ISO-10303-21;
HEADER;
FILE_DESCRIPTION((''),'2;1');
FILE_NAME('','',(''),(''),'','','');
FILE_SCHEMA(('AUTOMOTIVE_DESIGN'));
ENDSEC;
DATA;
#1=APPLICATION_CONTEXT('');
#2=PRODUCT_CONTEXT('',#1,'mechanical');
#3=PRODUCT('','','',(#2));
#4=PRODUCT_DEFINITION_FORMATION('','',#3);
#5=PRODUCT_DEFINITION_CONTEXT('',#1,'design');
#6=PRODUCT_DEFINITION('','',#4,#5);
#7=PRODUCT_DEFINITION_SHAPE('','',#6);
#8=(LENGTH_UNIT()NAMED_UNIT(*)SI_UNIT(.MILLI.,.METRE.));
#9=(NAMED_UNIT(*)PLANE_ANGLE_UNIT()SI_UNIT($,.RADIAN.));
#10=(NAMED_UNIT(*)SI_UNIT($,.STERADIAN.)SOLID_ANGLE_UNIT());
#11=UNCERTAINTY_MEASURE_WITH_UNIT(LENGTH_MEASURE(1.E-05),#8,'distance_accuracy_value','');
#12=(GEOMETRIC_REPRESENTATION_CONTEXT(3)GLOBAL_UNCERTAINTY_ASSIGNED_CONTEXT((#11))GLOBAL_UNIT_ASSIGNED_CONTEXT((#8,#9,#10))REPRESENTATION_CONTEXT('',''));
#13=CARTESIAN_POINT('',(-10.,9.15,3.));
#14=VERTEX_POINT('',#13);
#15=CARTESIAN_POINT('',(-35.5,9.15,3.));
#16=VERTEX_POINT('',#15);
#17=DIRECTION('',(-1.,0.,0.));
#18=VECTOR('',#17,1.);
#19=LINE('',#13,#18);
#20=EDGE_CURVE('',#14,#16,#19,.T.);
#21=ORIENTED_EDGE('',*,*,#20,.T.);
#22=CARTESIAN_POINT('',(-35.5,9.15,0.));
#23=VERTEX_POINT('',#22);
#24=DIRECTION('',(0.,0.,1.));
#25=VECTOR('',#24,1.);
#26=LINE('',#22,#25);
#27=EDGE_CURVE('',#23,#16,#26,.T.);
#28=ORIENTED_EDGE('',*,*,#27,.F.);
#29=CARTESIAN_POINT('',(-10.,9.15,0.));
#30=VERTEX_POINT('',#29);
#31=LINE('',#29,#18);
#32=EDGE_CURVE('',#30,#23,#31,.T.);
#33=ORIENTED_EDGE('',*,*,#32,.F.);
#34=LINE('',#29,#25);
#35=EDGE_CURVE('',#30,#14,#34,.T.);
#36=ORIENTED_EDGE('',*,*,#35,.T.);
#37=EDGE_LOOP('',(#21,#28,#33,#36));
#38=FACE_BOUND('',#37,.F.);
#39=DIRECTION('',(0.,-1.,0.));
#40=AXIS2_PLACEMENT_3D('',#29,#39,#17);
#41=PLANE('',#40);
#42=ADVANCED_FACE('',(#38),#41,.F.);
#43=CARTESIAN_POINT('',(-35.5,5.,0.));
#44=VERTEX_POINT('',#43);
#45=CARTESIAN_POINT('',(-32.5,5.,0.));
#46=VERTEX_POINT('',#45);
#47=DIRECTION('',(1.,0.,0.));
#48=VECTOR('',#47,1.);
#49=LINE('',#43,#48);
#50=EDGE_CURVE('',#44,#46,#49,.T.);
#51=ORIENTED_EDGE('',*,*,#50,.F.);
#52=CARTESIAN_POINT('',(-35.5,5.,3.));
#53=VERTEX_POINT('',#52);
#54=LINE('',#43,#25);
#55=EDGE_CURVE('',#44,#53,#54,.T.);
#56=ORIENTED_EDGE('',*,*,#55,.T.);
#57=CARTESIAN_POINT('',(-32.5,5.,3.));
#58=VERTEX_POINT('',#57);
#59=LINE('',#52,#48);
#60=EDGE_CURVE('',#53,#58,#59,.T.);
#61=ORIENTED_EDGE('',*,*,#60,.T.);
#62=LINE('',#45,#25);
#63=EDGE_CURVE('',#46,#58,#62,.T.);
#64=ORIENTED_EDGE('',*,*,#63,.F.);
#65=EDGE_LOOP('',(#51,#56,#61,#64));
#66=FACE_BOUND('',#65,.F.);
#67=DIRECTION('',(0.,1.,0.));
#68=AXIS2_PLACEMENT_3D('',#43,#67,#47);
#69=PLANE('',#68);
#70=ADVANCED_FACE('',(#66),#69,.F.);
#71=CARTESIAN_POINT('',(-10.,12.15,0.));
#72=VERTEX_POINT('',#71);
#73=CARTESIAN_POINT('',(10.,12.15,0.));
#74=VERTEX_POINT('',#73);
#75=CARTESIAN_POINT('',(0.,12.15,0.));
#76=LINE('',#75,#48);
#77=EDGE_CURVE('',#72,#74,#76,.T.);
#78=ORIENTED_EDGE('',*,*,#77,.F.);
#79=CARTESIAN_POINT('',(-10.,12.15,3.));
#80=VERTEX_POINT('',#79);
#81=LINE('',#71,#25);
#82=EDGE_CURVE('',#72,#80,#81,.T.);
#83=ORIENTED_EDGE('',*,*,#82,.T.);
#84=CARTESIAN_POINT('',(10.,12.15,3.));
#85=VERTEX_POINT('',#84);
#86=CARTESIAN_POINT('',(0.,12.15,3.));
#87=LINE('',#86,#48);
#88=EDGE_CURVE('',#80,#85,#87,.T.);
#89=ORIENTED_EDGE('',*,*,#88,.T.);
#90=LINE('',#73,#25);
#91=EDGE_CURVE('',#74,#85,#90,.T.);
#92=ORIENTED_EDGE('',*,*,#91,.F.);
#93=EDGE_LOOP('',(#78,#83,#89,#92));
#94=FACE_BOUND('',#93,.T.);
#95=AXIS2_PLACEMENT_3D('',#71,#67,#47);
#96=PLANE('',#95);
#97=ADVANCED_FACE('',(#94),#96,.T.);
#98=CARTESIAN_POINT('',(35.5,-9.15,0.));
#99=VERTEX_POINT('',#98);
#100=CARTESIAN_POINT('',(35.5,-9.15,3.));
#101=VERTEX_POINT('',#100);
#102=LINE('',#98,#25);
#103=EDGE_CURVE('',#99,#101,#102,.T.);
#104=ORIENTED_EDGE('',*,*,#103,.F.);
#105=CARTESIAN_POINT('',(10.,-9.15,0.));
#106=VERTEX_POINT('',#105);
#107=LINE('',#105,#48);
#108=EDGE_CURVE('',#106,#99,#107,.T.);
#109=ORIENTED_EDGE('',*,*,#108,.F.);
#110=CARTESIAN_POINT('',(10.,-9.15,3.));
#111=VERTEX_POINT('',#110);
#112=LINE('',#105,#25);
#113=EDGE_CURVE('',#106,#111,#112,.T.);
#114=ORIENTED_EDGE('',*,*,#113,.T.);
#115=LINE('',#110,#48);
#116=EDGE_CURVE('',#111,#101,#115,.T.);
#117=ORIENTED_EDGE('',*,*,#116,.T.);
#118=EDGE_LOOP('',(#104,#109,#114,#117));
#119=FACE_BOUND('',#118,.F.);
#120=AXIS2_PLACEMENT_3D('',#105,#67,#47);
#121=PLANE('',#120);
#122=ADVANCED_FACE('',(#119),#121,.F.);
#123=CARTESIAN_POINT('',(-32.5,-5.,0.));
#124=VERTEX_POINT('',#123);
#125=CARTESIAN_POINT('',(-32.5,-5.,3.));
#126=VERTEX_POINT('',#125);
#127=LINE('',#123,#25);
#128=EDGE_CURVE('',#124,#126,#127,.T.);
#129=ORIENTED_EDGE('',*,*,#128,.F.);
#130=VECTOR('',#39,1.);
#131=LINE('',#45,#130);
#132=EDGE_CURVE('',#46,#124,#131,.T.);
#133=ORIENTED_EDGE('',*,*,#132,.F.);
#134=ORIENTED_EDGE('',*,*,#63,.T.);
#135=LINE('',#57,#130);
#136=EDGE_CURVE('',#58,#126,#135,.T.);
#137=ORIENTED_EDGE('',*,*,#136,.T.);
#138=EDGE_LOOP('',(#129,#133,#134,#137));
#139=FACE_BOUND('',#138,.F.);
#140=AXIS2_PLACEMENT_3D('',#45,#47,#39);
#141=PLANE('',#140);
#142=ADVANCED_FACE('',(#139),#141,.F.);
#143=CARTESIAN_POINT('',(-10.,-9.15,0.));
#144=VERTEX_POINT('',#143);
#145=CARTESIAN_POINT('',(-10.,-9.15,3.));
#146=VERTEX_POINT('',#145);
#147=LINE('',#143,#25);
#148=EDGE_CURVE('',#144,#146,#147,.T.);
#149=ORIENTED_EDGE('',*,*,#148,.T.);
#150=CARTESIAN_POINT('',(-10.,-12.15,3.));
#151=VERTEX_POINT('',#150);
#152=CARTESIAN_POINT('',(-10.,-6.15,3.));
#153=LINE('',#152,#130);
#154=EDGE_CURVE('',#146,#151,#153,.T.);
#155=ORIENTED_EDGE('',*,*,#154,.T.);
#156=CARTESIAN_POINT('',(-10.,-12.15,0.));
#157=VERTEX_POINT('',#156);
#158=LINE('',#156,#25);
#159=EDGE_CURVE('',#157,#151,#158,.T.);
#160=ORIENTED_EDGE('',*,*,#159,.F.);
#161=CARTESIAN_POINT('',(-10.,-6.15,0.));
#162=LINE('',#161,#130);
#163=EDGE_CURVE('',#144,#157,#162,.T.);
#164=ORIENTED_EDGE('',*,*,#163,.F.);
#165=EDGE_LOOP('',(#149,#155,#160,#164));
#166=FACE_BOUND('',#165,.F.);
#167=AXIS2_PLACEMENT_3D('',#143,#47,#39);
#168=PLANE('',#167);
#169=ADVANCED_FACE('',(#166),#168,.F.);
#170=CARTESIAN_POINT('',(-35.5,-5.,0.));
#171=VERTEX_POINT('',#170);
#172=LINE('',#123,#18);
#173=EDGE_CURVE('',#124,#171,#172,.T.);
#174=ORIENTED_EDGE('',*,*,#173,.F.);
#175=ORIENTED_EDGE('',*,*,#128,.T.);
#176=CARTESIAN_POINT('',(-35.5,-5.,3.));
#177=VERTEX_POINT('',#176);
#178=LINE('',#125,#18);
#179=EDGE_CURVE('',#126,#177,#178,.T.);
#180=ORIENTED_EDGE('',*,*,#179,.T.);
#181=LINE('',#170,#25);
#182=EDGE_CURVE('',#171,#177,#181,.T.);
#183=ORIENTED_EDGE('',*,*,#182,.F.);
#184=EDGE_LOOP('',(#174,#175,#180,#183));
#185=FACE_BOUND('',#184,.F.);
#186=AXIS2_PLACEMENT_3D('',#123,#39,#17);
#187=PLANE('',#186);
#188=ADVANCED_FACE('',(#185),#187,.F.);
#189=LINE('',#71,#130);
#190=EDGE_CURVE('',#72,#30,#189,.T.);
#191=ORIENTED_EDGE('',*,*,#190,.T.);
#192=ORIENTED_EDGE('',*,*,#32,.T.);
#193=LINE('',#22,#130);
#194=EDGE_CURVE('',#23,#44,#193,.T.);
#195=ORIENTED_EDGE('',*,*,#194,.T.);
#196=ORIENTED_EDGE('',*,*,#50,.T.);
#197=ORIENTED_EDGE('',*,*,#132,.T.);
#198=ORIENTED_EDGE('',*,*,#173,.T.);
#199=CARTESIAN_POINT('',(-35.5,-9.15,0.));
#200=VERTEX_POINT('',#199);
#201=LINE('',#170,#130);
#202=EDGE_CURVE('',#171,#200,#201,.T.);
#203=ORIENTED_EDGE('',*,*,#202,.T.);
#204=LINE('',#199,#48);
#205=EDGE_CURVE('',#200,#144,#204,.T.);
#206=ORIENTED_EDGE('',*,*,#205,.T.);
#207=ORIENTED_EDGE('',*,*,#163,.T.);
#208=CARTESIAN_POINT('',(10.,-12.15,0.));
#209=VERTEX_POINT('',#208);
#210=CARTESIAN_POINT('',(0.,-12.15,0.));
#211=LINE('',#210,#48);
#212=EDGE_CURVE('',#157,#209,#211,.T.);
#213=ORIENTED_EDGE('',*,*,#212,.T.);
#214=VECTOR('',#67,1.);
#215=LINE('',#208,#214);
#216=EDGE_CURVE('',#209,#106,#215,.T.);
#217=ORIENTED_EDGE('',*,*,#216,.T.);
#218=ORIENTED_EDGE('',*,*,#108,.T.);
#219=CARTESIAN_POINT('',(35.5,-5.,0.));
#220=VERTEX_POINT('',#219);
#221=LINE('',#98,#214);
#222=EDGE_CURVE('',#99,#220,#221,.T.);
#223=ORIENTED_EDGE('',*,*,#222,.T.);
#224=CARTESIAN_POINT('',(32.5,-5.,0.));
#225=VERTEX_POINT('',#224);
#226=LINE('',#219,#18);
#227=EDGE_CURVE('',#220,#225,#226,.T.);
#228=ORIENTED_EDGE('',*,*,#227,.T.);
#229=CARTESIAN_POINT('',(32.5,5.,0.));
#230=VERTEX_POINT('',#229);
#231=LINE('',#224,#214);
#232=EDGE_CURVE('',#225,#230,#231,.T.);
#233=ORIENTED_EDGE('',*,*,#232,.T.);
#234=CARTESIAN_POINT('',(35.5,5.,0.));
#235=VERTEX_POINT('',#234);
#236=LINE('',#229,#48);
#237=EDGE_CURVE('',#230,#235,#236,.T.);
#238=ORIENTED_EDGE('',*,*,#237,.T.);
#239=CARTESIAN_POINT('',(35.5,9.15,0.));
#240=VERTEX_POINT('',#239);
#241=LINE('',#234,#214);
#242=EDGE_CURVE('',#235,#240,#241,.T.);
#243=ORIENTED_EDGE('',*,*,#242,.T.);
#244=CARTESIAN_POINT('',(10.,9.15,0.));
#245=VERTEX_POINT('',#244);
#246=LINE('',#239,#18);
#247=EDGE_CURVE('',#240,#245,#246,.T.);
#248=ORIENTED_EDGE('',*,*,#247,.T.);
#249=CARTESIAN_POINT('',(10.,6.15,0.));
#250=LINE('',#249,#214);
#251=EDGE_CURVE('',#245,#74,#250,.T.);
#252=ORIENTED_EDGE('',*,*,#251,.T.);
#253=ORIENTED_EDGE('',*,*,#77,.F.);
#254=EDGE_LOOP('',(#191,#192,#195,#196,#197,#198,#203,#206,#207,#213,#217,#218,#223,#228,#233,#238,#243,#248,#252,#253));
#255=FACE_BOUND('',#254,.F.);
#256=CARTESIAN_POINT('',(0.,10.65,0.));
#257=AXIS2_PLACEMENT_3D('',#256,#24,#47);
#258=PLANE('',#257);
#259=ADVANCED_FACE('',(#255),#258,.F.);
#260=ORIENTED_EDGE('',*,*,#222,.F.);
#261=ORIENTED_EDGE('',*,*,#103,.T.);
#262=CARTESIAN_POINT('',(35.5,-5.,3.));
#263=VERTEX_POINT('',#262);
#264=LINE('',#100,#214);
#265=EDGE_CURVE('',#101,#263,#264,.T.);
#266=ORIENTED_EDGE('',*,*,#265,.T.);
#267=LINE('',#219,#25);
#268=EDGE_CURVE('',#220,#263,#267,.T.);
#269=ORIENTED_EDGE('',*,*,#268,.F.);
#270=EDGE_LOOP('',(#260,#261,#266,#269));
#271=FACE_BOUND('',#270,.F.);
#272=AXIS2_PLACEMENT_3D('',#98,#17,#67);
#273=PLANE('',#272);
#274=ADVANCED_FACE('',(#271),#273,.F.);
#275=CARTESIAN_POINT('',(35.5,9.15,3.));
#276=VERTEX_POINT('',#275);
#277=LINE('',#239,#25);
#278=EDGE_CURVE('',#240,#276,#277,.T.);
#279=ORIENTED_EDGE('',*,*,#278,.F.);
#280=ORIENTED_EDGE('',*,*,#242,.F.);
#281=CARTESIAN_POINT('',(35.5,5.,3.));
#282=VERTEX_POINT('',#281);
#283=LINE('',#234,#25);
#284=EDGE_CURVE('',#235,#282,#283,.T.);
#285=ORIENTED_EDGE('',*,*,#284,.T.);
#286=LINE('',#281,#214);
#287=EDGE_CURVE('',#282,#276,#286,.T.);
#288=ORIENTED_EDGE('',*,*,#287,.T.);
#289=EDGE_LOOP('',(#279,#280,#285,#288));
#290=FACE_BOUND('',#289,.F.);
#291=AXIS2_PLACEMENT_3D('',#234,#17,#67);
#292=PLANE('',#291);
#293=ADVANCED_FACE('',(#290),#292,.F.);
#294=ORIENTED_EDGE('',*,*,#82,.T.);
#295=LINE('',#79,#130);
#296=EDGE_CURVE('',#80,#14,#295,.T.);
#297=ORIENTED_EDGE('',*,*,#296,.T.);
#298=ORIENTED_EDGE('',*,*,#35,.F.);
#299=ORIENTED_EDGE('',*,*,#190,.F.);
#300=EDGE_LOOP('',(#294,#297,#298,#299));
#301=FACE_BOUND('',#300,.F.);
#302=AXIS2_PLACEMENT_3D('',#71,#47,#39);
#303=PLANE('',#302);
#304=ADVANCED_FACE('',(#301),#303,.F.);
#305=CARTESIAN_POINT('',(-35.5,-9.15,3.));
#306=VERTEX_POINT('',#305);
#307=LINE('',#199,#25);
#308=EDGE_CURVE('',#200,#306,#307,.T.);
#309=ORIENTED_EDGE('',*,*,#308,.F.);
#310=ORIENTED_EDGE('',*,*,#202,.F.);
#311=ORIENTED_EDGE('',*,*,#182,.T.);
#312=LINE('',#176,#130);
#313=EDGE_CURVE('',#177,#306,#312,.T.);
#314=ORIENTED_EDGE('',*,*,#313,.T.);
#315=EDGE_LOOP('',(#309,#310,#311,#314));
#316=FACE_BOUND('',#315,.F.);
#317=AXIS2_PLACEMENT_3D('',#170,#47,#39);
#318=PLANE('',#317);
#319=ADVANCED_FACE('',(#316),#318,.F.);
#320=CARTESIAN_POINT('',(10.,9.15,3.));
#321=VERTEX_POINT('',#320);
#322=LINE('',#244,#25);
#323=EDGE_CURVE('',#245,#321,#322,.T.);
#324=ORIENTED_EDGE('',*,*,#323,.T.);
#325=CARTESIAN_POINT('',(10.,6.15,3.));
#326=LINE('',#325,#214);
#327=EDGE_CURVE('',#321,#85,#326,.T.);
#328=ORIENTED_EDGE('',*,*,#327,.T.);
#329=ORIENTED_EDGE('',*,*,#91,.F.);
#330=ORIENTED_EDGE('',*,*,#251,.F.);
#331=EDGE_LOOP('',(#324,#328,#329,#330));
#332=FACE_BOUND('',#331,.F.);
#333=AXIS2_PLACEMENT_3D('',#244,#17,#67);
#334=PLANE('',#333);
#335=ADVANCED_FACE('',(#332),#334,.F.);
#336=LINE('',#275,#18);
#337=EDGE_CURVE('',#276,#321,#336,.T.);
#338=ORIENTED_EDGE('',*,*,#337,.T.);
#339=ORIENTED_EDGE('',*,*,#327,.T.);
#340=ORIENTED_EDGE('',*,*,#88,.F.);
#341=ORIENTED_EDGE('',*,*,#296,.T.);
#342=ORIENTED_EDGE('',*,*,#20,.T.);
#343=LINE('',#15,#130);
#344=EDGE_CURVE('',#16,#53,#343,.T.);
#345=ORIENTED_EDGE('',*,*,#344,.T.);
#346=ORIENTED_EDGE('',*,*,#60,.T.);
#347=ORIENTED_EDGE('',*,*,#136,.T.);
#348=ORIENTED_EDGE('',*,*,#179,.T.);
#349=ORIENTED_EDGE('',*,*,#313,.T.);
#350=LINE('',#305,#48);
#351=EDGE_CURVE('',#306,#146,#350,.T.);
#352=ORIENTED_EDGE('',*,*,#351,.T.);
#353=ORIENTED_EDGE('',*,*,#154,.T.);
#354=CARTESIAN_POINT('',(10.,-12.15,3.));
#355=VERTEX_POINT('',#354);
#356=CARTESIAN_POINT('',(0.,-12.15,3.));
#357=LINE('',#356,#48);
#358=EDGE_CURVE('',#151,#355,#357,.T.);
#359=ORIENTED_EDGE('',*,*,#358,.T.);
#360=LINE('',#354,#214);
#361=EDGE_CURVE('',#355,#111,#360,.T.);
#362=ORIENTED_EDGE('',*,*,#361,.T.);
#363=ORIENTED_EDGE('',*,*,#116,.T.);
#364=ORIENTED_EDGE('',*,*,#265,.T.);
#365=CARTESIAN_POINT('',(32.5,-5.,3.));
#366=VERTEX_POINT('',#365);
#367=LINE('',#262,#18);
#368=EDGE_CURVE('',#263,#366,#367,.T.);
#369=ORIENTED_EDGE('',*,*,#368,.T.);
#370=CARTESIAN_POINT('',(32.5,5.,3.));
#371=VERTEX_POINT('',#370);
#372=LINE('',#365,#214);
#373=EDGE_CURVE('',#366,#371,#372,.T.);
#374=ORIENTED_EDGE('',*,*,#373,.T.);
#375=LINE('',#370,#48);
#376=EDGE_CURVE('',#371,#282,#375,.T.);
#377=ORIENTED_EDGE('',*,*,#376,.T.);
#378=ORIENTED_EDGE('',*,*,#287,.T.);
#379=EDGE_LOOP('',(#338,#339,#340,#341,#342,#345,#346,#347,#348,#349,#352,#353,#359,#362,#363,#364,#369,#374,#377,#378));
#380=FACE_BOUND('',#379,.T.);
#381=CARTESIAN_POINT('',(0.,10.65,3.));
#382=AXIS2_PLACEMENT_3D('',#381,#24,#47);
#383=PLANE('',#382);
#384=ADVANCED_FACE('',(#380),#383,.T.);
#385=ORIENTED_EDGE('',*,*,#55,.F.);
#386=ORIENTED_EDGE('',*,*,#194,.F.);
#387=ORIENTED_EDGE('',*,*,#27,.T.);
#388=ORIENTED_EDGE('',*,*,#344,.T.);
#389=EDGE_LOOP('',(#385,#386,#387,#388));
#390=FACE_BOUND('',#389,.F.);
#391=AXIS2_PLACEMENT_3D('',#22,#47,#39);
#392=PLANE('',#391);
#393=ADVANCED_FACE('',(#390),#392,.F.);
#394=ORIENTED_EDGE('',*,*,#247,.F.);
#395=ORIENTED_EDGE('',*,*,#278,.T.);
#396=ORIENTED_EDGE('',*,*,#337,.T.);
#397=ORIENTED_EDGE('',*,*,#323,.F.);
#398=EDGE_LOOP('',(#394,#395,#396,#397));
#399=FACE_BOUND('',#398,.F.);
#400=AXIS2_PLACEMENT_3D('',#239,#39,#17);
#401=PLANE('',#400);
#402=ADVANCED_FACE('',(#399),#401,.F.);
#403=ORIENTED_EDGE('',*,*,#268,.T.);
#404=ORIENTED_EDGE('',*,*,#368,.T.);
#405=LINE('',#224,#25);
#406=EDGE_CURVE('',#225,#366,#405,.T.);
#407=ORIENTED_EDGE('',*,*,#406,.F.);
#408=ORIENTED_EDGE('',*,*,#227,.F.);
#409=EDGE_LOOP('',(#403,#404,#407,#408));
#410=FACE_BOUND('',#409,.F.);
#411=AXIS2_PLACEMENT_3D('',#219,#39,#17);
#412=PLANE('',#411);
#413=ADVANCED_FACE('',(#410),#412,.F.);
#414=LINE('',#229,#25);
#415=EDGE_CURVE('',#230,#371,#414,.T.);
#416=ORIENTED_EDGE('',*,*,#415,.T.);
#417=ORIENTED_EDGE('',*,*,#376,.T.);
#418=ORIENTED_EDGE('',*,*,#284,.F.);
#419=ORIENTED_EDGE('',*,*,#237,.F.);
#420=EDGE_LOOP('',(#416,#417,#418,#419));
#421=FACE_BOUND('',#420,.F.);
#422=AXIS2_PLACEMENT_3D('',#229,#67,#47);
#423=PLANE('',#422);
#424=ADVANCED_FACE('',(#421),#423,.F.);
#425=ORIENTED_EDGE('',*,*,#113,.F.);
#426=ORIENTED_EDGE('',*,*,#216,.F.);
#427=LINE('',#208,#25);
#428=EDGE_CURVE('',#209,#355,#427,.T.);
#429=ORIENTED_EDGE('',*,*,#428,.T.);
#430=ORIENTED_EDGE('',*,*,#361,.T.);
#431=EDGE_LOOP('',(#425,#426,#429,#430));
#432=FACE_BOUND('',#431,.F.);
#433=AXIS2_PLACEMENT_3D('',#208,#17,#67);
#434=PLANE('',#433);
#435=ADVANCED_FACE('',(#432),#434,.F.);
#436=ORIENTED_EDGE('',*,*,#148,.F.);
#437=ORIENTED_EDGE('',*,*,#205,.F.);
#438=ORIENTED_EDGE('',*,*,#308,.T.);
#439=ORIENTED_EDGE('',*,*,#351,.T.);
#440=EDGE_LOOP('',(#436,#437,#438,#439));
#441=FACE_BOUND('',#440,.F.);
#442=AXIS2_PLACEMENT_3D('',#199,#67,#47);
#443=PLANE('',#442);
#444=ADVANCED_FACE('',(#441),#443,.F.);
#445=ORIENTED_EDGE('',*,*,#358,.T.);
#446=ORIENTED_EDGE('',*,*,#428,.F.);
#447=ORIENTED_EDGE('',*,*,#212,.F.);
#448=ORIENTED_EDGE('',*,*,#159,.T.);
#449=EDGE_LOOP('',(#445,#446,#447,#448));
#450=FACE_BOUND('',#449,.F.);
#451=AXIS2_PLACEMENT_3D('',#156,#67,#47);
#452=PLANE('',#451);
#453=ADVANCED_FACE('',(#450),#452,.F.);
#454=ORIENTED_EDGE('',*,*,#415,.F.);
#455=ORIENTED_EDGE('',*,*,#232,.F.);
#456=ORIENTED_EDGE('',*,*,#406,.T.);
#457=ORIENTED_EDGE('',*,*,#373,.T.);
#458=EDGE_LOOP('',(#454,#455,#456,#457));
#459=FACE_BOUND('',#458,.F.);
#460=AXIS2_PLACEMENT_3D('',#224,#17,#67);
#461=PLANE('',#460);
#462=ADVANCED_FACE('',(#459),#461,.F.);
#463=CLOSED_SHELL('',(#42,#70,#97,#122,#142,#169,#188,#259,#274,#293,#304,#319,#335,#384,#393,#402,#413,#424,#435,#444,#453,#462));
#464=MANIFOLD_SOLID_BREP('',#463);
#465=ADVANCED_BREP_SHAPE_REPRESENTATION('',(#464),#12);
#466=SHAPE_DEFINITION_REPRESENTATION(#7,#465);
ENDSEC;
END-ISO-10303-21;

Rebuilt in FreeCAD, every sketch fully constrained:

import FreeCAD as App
import Part
import Sketcher

V = App.Vector
Q = App.Units.Quantity

doc = App.newDocument("Part")
body = doc.addObject("PartDesign::Body", "Body")

sketch1 = body.newObject("Sketcher::SketchObject", "Sketch")
sketch1.AttachmentSupport = (doc.getObject("XY_Plane"), [""])
sketch1.MapMode = "FlatFace"
sketch1.addGeometry(Part.LineSegment(V(-10, 12.2, 0), V(-10, 9.2, 0)), False)
sketch1.addGeometry(Part.LineSegment(V(-10, 9.2, 0), V(-35.5, 9.2, 0)), False)
sketch1.addGeometry(Part.LineSegment(V(-35.5, 9.2, 0), V(-35.5, 5, 0)), False)
sketch1.addGeometry(Part.LineSegment(V(-35.5, 5, 0), V(-32.5, 5, 0)), False)
sketch1.addGeometry(Part.LineSegment(V(-32.5, 5, 0), V(-32.5, -5, 0)), False)
sketch1.addGeometry(Part.LineSegment(V(-32.5, -5, 0), V(-35.5, -5, 0)), False)
sketch1.addGeometry(Part.LineSegment(V(-35.5, -5, 0), V(-35.5, -9.2, 0)), False)
sketch1.addGeometry(Part.LineSegment(V(-35.5, -9.2, 0), V(-10, -9.2, 0)), False)
sketch1.addGeometry(Part.LineSegment(V(-10, -9.2, 0), V(-10, -12.2, 0)), False)
sketch1.addGeometry(Part.LineSegment(V(-10, -12.2, 0), V(10, -12.2, 0)), False)
sketch1.addGeometry(Part.LineSegment(V(10, -12.2, 0), V(10, -9.2, 0)), False)
sketch1.addGeometry(Part.LineSegment(V(10, -9.2, 0), V(35.5, -9.2, 0)), False)
sketch1.addGeometry(Part.LineSegment(V(35.5, -9.2, 0), V(35.5, -5, 0)), False)
sketch1.addGeometry(Part.LineSegment(V(35.5, -5, 0), V(32.5, -5, 0)), False)
sketch1.addGeometry(Part.LineSegment(V(32.5, -5, 0), V(32.5, 5, 0)), False)
sketch1.addGeometry(Part.LineSegment(V(32.5, 5, 0), V(35.5, 5, 0)), False)
sketch1.addGeometry(Part.LineSegment(V(35.5, 5, 0), V(35.5, 9.2, 0)), False)
sketch1.addGeometry(Part.LineSegment(V(35.5, 9.2, 0), V(10, 9.2, 0)), False)
sketch1.addGeometry(Part.LineSegment(V(10, 9.2, 0), V(10, 12.2, 0)), False)
sketch1.addGeometry(Part.LineSegment(V(10, 12.2, 0), V(-10, 12.2, 0)), False)
sketch1.addConstraint(Sketcher.Constraint("Coincident", 0, 2, 1, 1))
sketch1.addConstraint(Sketcher.Constraint("Coincident", 1, 2, 2, 1))
sketch1.addConstraint(Sketcher.Constraint("Coincident", 2, 2, 3, 1))
sketch1.addConstraint(Sketcher.Constraint("Coincident", 3, 2, 4, 1))
sketch1.addConstraint(Sketcher.Constraint("Coincident", 4, 2, 5, 1))
sketch1.addConstraint(Sketcher.Constraint("Coincident", 5, 2, 6, 1))
sketch1.addConstraint(Sketcher.Constraint("Coincident", 6, 2, 7, 1))
sketch1.addConstraint(Sketcher.Constraint("Coincident", 7, 2, 8, 1))
sketch1.addConstraint(Sketcher.Constraint("Coincident", 8, 2, 9, 1))
sketch1.addConstraint(Sketcher.Constraint("Coincident", 9, 2, 10, 1))
sketch1.addConstraint(Sketcher.Constraint("Coincident", 10, 2, 11, 1))
sketch1.addConstraint(Sketcher.Constraint("Coincident", 11, 2, 12, 1))
sketch1.addConstraint(Sketcher.Constraint("Coincident", 12, 2, 13, 1))
sketch1.addConstraint(Sketcher.Constraint("Coincident", 13, 2, 14, 1))
sketch1.addConstraint(Sketcher.Constraint("Coincident", 14, 2, 15, 1))
sketch1.addConstraint(Sketcher.Constraint("Coincident", 15, 2, 16, 1))
sketch1.addConstraint(Sketcher.Constraint("Coincident", 16, 2, 17, 1))
sketch1.addConstraint(Sketcher.Constraint("Coincident", 17, 2, 18, 1))
sketch1.addConstraint(Sketcher.Constraint("Coincident", 18, 2, 19, 1))
sketch1.addConstraint(Sketcher.Constraint("Coincident", 19, 2, 0, 1))
sketch1.addConstraint(Sketcher.Constraint("Vertical", 0))
sketch1.addConstraint(Sketcher.Constraint("Horizontal", 1))
sketch1.addConstraint(Sketcher.Constraint("Vertical", 2))
sketch1.addConstraint(Sketcher.Constraint("Horizontal", 3))
sketch1.addConstraint(Sketcher.Constraint("Vertical", 4))
sketch1.addConstraint(Sketcher.Constraint("Horizontal", 5))
sketch1.addConstraint(Sketcher.Constraint("Vertical", 6))
sketch1.addConstraint(Sketcher.Constraint("Horizontal", 7))
sketch1.addConstraint(Sketcher.Constraint("Vertical", 8))
sketch1.addConstraint(Sketcher.Constraint("Horizontal", 9))
sketch1.addConstraint(Sketcher.Constraint("Vertical", 10))
sketch1.addConstraint(Sketcher.Constraint("Horizontal", 11))
sketch1.addConstraint(Sketcher.Constraint("Vertical", 12))
sketch1.addConstraint(Sketcher.Constraint("Horizontal", 13))
sketch1.addConstraint(Sketcher.Constraint("Vertical", 14))
sketch1.addConstraint(Sketcher.Constraint("Horizontal", 15))
sketch1.addConstraint(Sketcher.Constraint("Vertical", 16))
sketch1.addConstraint(Sketcher.Constraint("Horizontal", 17))
sketch1.addConstraint(Sketcher.Constraint("Vertical", 18))
sketch1.addConstraint(Sketcher.Constraint("Horizontal", 19))
sketch1.addConstraint(Sketcher.Constraint("Symmetric", 0, 2, 10, 2, -1, 1))
sketch1.addConstraint(Sketcher.Constraint("Symmetric", 2, 2, 12, 2, -1, 1))
sketch1.addConstraint(Sketcher.Constraint("Symmetric", 4, 2, 14, 2, -1, 1))
sketch1.addConstraint(Sketcher.Constraint("Symmetric", 6, 2, 16, 2, -1, 1))
sketch1.addConstraint(Sketcher.Constraint("Symmetric", 8, 2, 18, 2, -1, 1))
sketch1.addConstraint(Sketcher.Constraint("Symmetric", 7, 2, 10, 2, -2))
sketch1.addConstraint(Sketcher.Constraint("Symmetric", 5, 2, 12, 2, -2))
sketch1.addConstraint(Sketcher.Constraint("Equal", 15, 0))
sketch1.addConstraint(Sketcher.Constraint("DistanceX", 3, 1, 3, 2, Q("3 mm")))
sketch1.addConstraint(Sketcher.Constraint("DistanceX", 9, 1, 9, 2, Q("20 mm")))
sketch1.addConstraint(Sketcher.Constraint("DistanceY", 4, 2, 4, 1, Q("10 mm")))
sketch1.addConstraint(Sketcher.Constraint("DistanceX", 1, 2, 1, 1, Q("25.5 mm")))
sketch1.addConstraint(Sketcher.Constraint("DistanceY", 2, 2, 2, 1, Q("4.15 mm")))
pad1 = body.newObject("PartDesign::Pad", "Pad")
pad1.Profile = sketch1
pad1.Length = 3

doc.recompute()
